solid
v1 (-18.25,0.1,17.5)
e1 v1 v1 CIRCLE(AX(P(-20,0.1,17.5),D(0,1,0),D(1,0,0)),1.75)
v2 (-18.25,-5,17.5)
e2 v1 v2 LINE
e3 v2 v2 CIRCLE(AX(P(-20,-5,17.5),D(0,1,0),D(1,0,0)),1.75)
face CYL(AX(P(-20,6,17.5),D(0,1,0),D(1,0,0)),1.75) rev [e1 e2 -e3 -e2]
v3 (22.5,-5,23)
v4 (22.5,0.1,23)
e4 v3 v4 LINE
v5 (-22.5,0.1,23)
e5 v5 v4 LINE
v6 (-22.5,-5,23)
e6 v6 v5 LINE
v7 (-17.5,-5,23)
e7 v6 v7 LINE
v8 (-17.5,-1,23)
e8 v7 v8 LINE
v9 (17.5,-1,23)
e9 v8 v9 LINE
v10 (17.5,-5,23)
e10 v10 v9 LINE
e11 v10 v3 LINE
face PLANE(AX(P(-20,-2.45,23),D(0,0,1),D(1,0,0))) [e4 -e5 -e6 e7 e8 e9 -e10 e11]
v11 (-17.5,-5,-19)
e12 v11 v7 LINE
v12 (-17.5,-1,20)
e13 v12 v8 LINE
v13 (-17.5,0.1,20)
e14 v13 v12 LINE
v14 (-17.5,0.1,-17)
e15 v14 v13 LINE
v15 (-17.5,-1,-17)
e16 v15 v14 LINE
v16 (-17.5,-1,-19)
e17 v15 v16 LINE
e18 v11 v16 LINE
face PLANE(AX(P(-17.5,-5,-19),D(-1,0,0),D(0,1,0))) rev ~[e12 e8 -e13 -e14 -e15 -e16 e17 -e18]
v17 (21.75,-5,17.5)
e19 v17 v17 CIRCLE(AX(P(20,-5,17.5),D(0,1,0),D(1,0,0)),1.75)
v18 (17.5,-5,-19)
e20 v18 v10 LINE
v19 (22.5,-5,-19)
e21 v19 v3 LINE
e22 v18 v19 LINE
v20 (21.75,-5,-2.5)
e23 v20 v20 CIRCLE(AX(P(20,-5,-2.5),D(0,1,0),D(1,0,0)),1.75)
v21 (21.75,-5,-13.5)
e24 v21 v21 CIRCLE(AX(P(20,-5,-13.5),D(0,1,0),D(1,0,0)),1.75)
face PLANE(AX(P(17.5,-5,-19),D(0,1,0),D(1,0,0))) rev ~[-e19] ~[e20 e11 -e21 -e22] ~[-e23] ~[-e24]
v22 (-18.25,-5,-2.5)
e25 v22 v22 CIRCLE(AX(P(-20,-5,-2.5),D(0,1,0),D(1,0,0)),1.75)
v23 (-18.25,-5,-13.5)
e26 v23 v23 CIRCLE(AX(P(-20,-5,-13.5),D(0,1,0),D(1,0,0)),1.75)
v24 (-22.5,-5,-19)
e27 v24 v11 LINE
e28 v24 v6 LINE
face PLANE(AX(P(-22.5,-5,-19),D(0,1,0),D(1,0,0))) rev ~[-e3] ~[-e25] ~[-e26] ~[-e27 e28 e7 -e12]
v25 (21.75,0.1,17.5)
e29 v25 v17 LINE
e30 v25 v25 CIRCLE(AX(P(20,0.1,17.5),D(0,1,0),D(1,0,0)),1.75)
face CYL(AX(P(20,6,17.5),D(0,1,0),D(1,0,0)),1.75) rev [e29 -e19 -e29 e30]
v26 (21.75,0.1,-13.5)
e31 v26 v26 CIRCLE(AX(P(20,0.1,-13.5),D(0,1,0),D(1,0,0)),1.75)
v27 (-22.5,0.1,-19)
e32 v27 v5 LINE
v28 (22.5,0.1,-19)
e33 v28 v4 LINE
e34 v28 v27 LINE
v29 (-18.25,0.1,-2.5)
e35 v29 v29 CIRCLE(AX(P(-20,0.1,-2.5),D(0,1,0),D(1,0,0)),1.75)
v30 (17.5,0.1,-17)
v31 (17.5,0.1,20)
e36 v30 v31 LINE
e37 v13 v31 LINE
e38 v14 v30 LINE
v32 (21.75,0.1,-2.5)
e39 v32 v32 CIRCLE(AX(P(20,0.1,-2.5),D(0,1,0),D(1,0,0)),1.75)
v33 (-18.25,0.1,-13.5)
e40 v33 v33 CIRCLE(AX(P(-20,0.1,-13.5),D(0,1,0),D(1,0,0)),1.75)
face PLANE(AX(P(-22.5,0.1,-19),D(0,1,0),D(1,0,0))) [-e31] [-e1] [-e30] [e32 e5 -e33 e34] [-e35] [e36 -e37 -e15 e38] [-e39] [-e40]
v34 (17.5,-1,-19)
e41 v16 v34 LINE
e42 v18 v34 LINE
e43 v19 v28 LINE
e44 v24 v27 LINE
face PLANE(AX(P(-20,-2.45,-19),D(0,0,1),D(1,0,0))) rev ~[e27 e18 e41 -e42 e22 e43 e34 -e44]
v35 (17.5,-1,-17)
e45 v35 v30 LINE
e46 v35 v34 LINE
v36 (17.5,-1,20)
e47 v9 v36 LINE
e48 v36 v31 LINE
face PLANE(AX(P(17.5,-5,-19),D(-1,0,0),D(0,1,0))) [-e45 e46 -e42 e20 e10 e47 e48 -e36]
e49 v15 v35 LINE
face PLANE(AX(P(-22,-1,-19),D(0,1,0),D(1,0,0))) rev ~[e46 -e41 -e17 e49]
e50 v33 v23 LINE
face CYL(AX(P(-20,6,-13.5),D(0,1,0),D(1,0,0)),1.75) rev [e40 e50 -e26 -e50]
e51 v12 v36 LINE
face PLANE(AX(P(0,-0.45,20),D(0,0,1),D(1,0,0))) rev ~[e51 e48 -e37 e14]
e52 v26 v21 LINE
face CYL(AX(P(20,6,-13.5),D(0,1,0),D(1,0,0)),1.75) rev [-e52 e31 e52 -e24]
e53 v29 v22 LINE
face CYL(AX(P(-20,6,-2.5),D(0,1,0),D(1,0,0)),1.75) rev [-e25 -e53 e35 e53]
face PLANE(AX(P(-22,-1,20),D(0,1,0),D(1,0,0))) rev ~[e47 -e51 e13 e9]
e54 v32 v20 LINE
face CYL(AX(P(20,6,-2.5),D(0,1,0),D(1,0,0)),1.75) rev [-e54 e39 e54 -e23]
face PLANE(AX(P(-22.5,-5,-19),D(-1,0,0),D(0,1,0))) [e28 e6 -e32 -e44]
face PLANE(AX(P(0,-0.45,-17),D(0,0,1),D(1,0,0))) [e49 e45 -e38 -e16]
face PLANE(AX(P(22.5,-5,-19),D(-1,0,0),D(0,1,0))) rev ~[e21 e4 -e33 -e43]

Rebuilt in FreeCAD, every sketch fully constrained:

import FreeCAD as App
import Part
import Sketcher

V = App.Vector
Q = App.Units.Quantity


def add_polygon(sketch, points):
    """Adds a closed chain of lines whose ends are joined by coincident constraints."""
    first, n = sketch.GeometryCount, len(points)
    for a, b in zip(points, points[1:] + points[:1]):
        sketch.addGeometry(Part.LineSegment(App.Vector(*a, 0), App.Vector(*b, 0)), False)
    for i in range(n):
        sketch.addConstraint(Sketcher.Constraint("Coincident", first + i, 2, first + (i + 1) % n, 1))

doc = App.newDocument("Part")
params = doc.addObject("Spreadsheet::Sheet", "Params")
for row, (alias, value) in enumerate([
    ("sketch1_diameter", "3.5 mm"),
    ("pad1_length", "44 mm"),
    ("sketch2_diameter", "3.5 mm"),
    ("pad2_length", "44 mm"),
    ("sketch3_diameter", "3.5 mm"),
    ("pad3_length", "44 mm"),
    ("sketch4_diameter", "3.5 mm"),
    ("pad4_length", "44 mm"),
    ("sketch5_diameter", "3.5 mm"),
    ("pad5_length", "44 mm"),
    ("sketch6_diameter", "3.5 mm"),
    ("pad6_length", "44 mm"),
    ("sketch7_width", "44 mm"),
    ("sketch7_height", "1.1 mm"),
    ("pad7_length", "3 mm"),
    ("sketch8_width", "5 mm"),
    ("sketch8_height", "5.1 mm"),
    ("pad8_length", "42 mm"),
    ("sketch9_width", "44 mm"),
    ("sketch9_height", "1.1 mm"),
    ("pad9_length", "2 mm"),
    ("sketch10_width", "5 mm"),
    ("sketch10_height", "5.1 mm"),
    ("pad10_length", "42 mm"),
], start=1):
    params.set(f"A{row}", alias)
    params.set(f"B{row}", "=" + value)
    params.setAlias(f"B{row}", alias)

body = doc.addObject("PartDesign::Body", "Body")

# Sketch on XY plane
sketch1 = body.newObject("Sketcher::SketchObject", "Sketch")
sketch1.AttachmentSupport = (doc.getObject("XY_Plane"), [""])
sketch1.MapMode = "FlatFace"
sketch1.addGeometry(Part.Circle(V(0, 0, 0), V(0, 0, 1), 1.8), False)
sketch1.addConstraint([
    Sketcher.Constraint("Coincident", 0, 3, -1, 1),
    Sketcher.Constraint("Diameter", 0, Q("3.5 mm")),
])
sketch1.setExpression("Constraints[1]", "Params.sketch1_diameter")
pad1 = body.newObject("PartDesign::Pad", "Pad")
pad1.Profile = sketch1
pad1.setExpression("Length", "Params.pad1_length")
body2 = doc.addObject("PartDesign::Body", "Body001")
doc.recompute()

body.Placement = App.Placement(V(0, 0, 0), App.Rotation(V(1, 0, 0), 90))
boolean = body2.newObject("PartDesign::Boolean", "Boolean")
boolean.Type = "Fuse"
boolean.addObjects([body])
body3 = doc.addObject("PartDesign::Body", "Body002")
doc.recompute()

body2.Placement = App.Placement(V(20, 6, 17.5), App.Rotation(V(0, 0, 1), 0))
boolean2 = body3.newObject("PartDesign::Boolean", "Boolean001")
boolean2.Type = "Fuse"
boolean2.addObjects([body2])
body4 = doc.addObject("PartDesign::Body", "Body003")

# Sketch on XY plane
sketch2 = body4.newObject("Sketcher::SketchObject", "Sketch001")
sketch2.AttachmentSupport = (doc.getObject("XY_Plane003"), [""])
sketch2.MapMode = "FlatFace"
sketch2.addGeometry(Part.Circle(V(0, 0, 0), V(0, 0, 1), 1.8), False)
sketch2.addConstraint([
    Sketcher.Constraint("Coincident", 0, 3, -1, 1),
    Sketcher.Constraint("Diameter", 0, Q("3.5 mm")),
])
sketch2.setExpression("Constraints[1]", "Params.sketch2_diameter")
pad2 = body4.newObject("PartDesign::Pad", "Pad001")
pad2.Profile = sketch2
pad2.setExpression("Length", "Params.pad2_length")
body5 = doc.addObject("PartDesign::Body", "Body004")
doc.recompute()

body4.Placement = App.Placement(V(0, 0, 0), App.Rotation(V(1, 0, 0), 90))
boolean3 = body5.newObject("PartDesign::Boolean", "Boolean002")
boolean3.Type = "Fuse"
boolean3.addObjects([body4])
body6 = doc.addObject("PartDesign::Body", "Body005")
doc.recompute()

body5.Placement = App.Placement(V(-20, 6, -2.5), App.Rotation(V(0, 0, 1), 0))
boolean4 = body6.newObject("PartDesign::Boolean", "Boolean003")
boolean4.Type = "Fuse"
boolean4.addObjects([body5])
body7 = doc.addObject("PartDesign::Body", "Body006")

# Sketch on XY plane
sketch3 = body7.newObject("Sketcher::SketchObject", "Sketch002")
sketch3.AttachmentSupport = (doc.getObject("XY_Plane006"), [""])
sketch3.MapMode = "FlatFace"
sketch3.addGeometry(Part.Circle(V(0, 0, 0), V(0, 0, 1), 1.8), False)
sketch3.addConstraint([
    Sketcher.Constraint("Coincident", 0, 3, -1, 1),
    Sketcher.Constraint("Diameter", 0, Q("3.5 mm")),
])
sketch3.setExpression("Constraints[1]", "Params.sketch3_diameter")
pad3 = body7.newObject("PartDesign::Pad", "Pad002")
pad3.Profile = sketch3
pad3.setExpression("Length", "Params.pad3_length")
body8 = doc.addObject("PartDesign::Body", "Body007")
doc.recompute()

body7.Placement = App.Placement(V(0, 0, 0), App.Rotation(V(1, 0, 0), 90))
boolean5 = body8.newObject("PartDesign::Boolean", "Boolean004")
boolean5.Type = "Fuse"
boolean5.addObjects([body7])
body9 = doc.addObject("PartDesign::Body", "Body008")
doc.recompute()

body8.Placement = App.Placement(V(20, 6, -2.5), App.Rotation(V(0, 0, 1), 0))
boolean6 = body9.newObject("PartDesign::Boolean", "Boolean005")
boolean6.Type = "Fuse"
boolean6.addObjects([body8])
body10 = doc.addObject("PartDesign::Body", "Body009")

# Sketch on XY plane
sketch4 = body10.newObject("Sketcher::SketchObject", "Sketch003")
sketch4.AttachmentSupport = (doc.getObject("XY_Plane009"), [""])
sketch4.MapMode = "FlatFace"
sketch4.addGeometry(Part.Circle(V(0, 0, 0), V(0, 0, 1), 1.8), False)
sketch4.addConstraint([
    Sketcher.Constraint("Coincident", 0, 3, -1, 1),
    Sketcher.Constraint("Diameter", 0, Q("3.5 mm")),
])
sketch4.setExpression("Constraints[1]", "Params.sketch4_diameter")
pad4 = body10.newObject("PartDesign::Pad", "Pad003")
pad4.Profile = sketch4
pad4.setExpression("Length", "Params.pad4_length")
body11 = doc.addObject("PartDesign::Body", "Body010")
doc.recompute()

body10.Placement = App.Placement(V(0, 0, 0), App.Rotation(V(1, 0, 0), 90))
boolean7 = body11.newObject("PartDesign::Boolean", "Boolean006")
boolean7.Type = "Fuse"
boolean7.addObjects([body10])
body12 = doc.addObject("PartDesign::Body", "Body011")
doc.recompute()

body11.Placement = App.Placement(V(-20, 6, -13.5), App.Rotation(V(0, 0, 1), 0))
boolean8 = body12.newObject("PartDesign::Boolean", "Boolean007")
boolean8.Type = "Fuse"
boolean8.addObjects([body11])
body13 = doc.addObject("PartDesign::Body", "Body012")

# Sketch on XY plane
sketch5 = body13.newObject("Sketcher::SketchObject", "Sketch004")
sketch5.AttachmentSupport = (doc.getObject("XY_Plane012"), [""])
sketch5.MapMode = "FlatFace"
sketch5.addGeometry(Part.Circle(V(0, 0, 0), V(0, 0, 1), 1.8), False)
sketch5.addConstraint([
    Sketcher.Constraint("Coincident", 0, 3, -1, 1),
    Sketcher.Constraint("Diameter", 0, Q("3.5 mm")),
])
sketch5.setExpression("Constraints[1]", "Params.sketch5_diameter")
pad5 = body13.newObject("PartDesign::Pad", "Pad004")
pad5.Profile = sketch5
pad5.setExpression("Length", "Params.pad5_length")
body14 = doc.addObject("PartDesign::Body", "Body013")
doc.recompute()

body13.Placement = App.Placement(V(0, 0, 0), App.Rotation(V(1, 0, 0), 90))
boolean9 = body14.newObject("PartDesign::Boolean", "Boolean008")
boolean9.Type = "Fuse"
boolean9.addObjects([body13])
body15 = doc.addObject("PartDesign::Body", "Body014")
doc.recompute()

body14.Placement = App.Placement(V(20, 6, -13.5), App.Rotation(V(0, 0, 1), 0))
boolean10 = body15.newObject("PartDesign::Boolean", "Boolean009")
boolean10.Type = "Fuse"
boolean10.addObjects([body14])
body16 = doc.addObject("PartDesign::Body", "Body015")

# Sketch on XY plane
sketch6 = body16.newObject("Sketcher::SketchObject", "Sketch005")
sketch6.AttachmentSupport = (doc.getObject("XY_Plane015"), [""])
sketch6.MapMode = "FlatFace"
sketch6.addGeometry(Part.Circle(V(0, 0, 0), V(0, 0, 1), 1.8), False)
sketch6.addConstraint([
    Sketcher.Constraint("Coincident", 0, 3, -1, 1),
    Sketcher.Constraint("Diameter", 0, Q("3.5 mm")),
])
sketch6.setExpression("Constraints[1]", "Params.sketch6_diameter")
pad6 = body16.newObject("PartDesign::Pad", "Pad005")
pad6.Profile = sketch6
pad6.setExpression("Length", "Params.pad6_length")
body17 = doc.addObject("PartDesign::Body", "Body016")
doc.recompute()

body16.Placement = App.Placement(V(0, 0, 0), App.Rotation(V(1, 0, 0), 90))
boolean11 = body17.newObject("PartDesign::Boolean", "Boolean010")
boolean11.Type = "Fuse"
boolean11.addObjects([body16])
body18 = doc.addObject("PartDesign::Body", "Body017")
body18.AllowCompound = True
doc.recompute()

body17.Placement = App.Placement(V(-20, 6, 17.5), App.Rotation(V(0, 0, 1), 0))
boolean12 = body18.newObject("PartDesign::Boolean", "Boolean011")
boolean12.Type = "Fuse"
boolean12.addObjects([body17])
doc.recompute()

boolean13 = body18.newObject("PartDesign::Boolean", "Boolean012")
boolean13.Type = "Fuse"
boolean13.addObjects([body3])
doc.recompute()

boolean14 = body18.newObject("PartDesign::Boolean", "Boolean013")
boolean14.Type = "Fuse"
boolean14.addObjects([body6])
doc.recompute()

boolean15 = body18.newObject("PartDesign::Boolean", "Boolean014")
boolean15.Type = "Fuse"
boolean15.addObjects([body9])
doc.recompute()

boolean16 = body18.newObject("PartDesign::Boolean", "Boolean015")
boolean16.Type = "Fuse"
boolean16.addObjects([body12])
doc.recompute()

boolean17 = body18.newObject("PartDesign::Boolean", "Boolean016")
boolean17.Type = "Fuse"
boolean17.addObjects([body15])
body19 = doc.addObject("PartDesign::Body", "Body018")

# Sketch on XY plane
sketch7 = body19.newObject("Sketcher::SketchObject", "Sketch006")
sketch7.AttachmentSupport = (doc.getObject("XY_Plane018"), [""])
sketch7.MapMode = "FlatFace"
sketch7.AttachmentOffset = App.Placement(V(0, 0, 20), App.Rotation())
add_polygon(sketch7, [(-22, 0.1), (-22, -1), (22, -1), (22, 0.1)])  # lines 0-3
sketch7.addConstraint([
    Sketcher.Constraint("Vertical", 0),
    Sketcher.Constraint("Horizontal", 1),
    Sketcher.Constraint("Vertical", 2),
    Sketcher.Constraint("Horizontal", 3),
    Sketcher.Constraint("DistanceX", 1, 1, 1, 2, Q("44 mm")),
    Sketcher.Constraint("DistanceY", 0, 2, 0, 1, Q("1.1 mm")),
    Sketcher.Constraint("DistanceX", 0, 2, -1, 1, Q("22 mm")),
    Sketcher.Constraint("DistanceY", 0, 2, -1, 1, Q("1 mm")),
])
sketch7.setExpression("Constraints[8]", "Params.sketch7_width")
sketch7.setExpression("Constraints[9]", "Params.sketch7_height")
pad7 = body19.newObject("PartDesign::Pad", "Pad006")
pad7.Profile = sketch7
pad7.setExpression("Length", "Params.pad7_length")
body20 = doc.addObject("PartDesign::Body", "Body019")

# Sketch on XY plane
sketch8 = body20.newObject("Sketcher::SketchObject", "Sketch007")
sketch8.AttachmentSupport = (doc.getObject("XY_Plane019"), [""])
sketch8.MapMode = "FlatFace"
sketch8.AttachmentOffset = App.Placement(V(0, 0, -19), App.Rotation())
add_polygon(sketch8, [(-22, 0), (-22, -5), (-18, -5), (-18, 0)])  # lines 0-3
sketch8.addConstraint([
    Sketcher.Constraint("Vertical", 0),
    Sketcher.Constraint("Horizontal", 1),
    Sketcher.Constraint("Vertical", 2),
    Sketcher.Constraint("Horizontal", 3),
    Sketcher.Constraint("DistanceX", 1, 1, 1, 2, Q("5 mm")),
    Sketcher.Constraint("DistanceY", 0, 2, 0, 1, Q("5.1 mm")),
    Sketcher.Constraint("DistanceY", 0, 2, -1, 1, Q("5 mm")),
    Sketcher.Constraint("DistanceX", 0, 2, -1, 1, Q("22.5 mm")),
])
sketch8.setExpression("Constraints[8]", "Params.sketch8_width")
sketch8.setExpression("Constraints[9]", "Params.sketch8_height")
pad8 = body20.newObject("PartDesign::Pad", "Pad007")
pad8.Profile = sketch8
pad8.setExpression("Length", "Params.pad8_length")
body21 = doc.addObject("PartDesign::Body", "Body020")

# Sketch on XY plane
sketch9 = body21.newObject("Sketcher::SketchObject", "Sketch008")
sketch9.AttachmentSupport = (doc.getObject("XY_Plane020"), [""])
sketch9.MapMode = "FlatFace"
sketch9.AttachmentOffset = App.Placement(V(0, 0, -19), App.Rotation())
add_polygon(sketch9, [(-22, 0.1), (-22, -1), (22, -1), (22, 0.1)])  # lines 0-3
sketch9.addConstraint([
    Sketcher.Constraint("Vertical", 0),
    Sketcher.Constraint("Horizontal", 1),
    Sketcher.Constraint("Vertical", 2),
    Sketcher.Constraint("Horizontal", 3),
    Sketcher.Constraint("DistanceX", 1, 1, 1, 2, Q("44 mm")),
    Sketcher.Constraint("DistanceY", 0, 2, 0, 1, Q("1.1 mm")),
    Sketcher.Constraint("DistanceX", 0, 2, -1, 1, Q("22 mm")),
    Sketcher.Constraint("DistanceY", 0, 2, -1, 1, Q("1 mm")),
])
sketch9.setExpression("Constraints[8]", "Params.sketch9_width")
sketch9.setExpression("Constraints[9]", "Params.sketch9_height")
pad9 = body21.newObject("PartDesign::Pad", "Pad008")
pad9.Profile = sketch9
pad9.setExpression("Length", "Params.pad9_length")
body22 = doc.addObject("PartDesign::Body", "Body021")

# Sketch on XY plane
sketch10 = body22.newObject("Sketcher::SketchObject", "Sketch009")
sketch10.AttachmentSupport = (doc.getObject("XY_Plane021"), [""])
sketch10.MapMode = "FlatFace"
sketch10.AttachmentOffset = App.Placement(V(0, 0, -19), App.Rotation())
add_polygon(sketch10, [(18, 0), (18, -5), (22, -5), (22, 0)])  # lines 0-3
sketch10.addConstraint([
    Sketcher.Constraint("Vertical", 0),
    Sketcher.Constraint("Horizontal", 1),
    Sketcher.Constraint("Vertical", 2),
    Sketcher.Constraint("Horizontal", 3),
    Sketcher.Constraint("DistanceX", 1, 1, 1, 2, Q("5 mm")),
    Sketcher.Constraint("DistanceY", 0, 2, 0, 1, Q("5.1 mm")),
    Sketcher.Constraint("DistanceY", 0, 2, -1, 1, Q("5 mm")),
    Sketcher.Constraint("DistanceX", -1, 1, 0, 2, Q("17.5 mm")),
])
sketch10.setExpression("Constraints[8]", "Params.sketch10_width")
sketch10.setExpression("Constraints[9]", "Params.sketch10_height")
pad10 = body22.newObject("PartDesign::Pad", "Pad009")
pad10.Profile = sketch10
pad10.setExpression("Length", "Params.pad10_length")
doc.recompute()

boolean18 = body22.newObject("PartDesign::Boolean", "Boolean017")
boolean18.Type = "Fuse"
boolean18.addObjects([body19])
doc.recompute()

boolean19 = body22.newObject("PartDesign::Boolean", "Boolean018")
boolean19.Type = "Fuse"
boolean19.addObjects([body20])
doc.recompute()

boolean20 = body22.newObject("PartDesign::Boolean", "Boolean019")
boolean20.Type = "Fuse"
boolean20.addObjects([body21])
doc.recompute()

boolean21 = body22.newObject("PartDesign::Boolean", "Boolean020")
boolean21.Type = "Cut"
boolean21.addObjects([body18])

doc.recompute()
